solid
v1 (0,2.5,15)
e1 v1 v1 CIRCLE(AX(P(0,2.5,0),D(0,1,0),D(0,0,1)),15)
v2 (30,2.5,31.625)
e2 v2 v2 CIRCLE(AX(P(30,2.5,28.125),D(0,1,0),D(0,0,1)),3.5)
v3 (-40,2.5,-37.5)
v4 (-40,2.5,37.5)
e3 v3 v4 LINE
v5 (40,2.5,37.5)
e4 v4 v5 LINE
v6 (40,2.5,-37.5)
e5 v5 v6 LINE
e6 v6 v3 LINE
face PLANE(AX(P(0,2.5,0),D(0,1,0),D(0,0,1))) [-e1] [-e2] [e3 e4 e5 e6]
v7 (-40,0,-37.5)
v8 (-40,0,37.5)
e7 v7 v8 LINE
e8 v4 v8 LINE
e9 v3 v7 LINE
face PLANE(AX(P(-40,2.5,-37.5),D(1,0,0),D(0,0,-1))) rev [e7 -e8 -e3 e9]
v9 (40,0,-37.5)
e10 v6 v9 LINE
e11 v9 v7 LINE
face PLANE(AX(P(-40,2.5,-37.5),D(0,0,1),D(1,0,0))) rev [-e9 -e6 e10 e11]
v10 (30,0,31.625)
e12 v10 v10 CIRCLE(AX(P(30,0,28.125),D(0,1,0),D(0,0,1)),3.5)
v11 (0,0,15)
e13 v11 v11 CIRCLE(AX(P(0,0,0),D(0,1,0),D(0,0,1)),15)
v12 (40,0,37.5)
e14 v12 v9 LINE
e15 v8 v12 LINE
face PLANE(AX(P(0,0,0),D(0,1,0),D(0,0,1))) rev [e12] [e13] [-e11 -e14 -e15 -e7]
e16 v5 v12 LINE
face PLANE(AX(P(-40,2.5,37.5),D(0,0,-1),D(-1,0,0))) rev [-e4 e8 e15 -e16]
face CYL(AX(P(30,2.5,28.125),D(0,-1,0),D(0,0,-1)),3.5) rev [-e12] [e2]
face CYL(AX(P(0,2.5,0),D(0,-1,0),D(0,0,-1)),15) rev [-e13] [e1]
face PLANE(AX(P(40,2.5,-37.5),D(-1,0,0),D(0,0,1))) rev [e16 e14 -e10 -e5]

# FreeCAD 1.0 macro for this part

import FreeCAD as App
import Part
import Sketcher
Q = App.Units.Quantity


def add_polygon(sketch, points):
    """Adds a closed chain of lines whose ends are joined by coincident constraints."""
    first, n = sketch.GeometryCount, len(points)
    for a, b in zip(points, points[1:] + points[:1]):
        sketch.addGeometry(Part.LineSegment(App.Vector(*a, 0), App.Vector(*b, 0)), False)
    for i in range(n):
        sketch.addConstraint(Sketcher.Constraint("Coincident", first + i, 2, first + (i + 1) % n, 1))

doc = App.newDocument("Part")
body = doc.addObject("PartDesign::Body", "Body")

# Sketch on XZ plane
sketch1 = body.newObject("Sketcher::SketchObject", "Sketch")
sketch1.AttachmentSupport = (doc.getObject("XZ_Plane"), [""])
sketch1.MapMode = "FlatFace"
add_polygon(sketch1, [(-40, -37.5), (-40, 37.5), (40, 37.5), (40, -37.5)])  # lines 0-3
sketch1.addGeometry(Part.Circle(App.Vector(30, 28.1, 0), App.Vector(0, 0, 1), 3.5), False)  # 4
sketch1.addGeometry(Part.Circle(App.Vector(0, 0, 0), App.Vector(0, 0, 1), 15), False)  # 5
sketch1.addConstraint(Sketcher.Constraint("Vertical", 0))
sketch1.addConstraint(Sketcher.Constraint("Horizontal", 1))
sketch1.addConstraint(Sketcher.Constraint("Vertical", 2))
sketch1.addConstraint(Sketcher.Constraint("Horizontal", 3))
sketch1.addConstraint(Sketcher.Constraint("Coincident", 5, 3, -1, 1))
sketch1.addConstraint(Sketcher.Constraint("Symmetric", 0, 2, 2, 2, -1, 1))
sketch1.addConstraint(Sketcher.Constraint("Diameter", 4, Q("7 mm")))
sketch1.addConstraint(Sketcher.Constraint("Diameter", 5, Q("30 mm")))
sketch1.addConstraint(Sketcher.Constraint("DistanceX", 1, 1, 1, 2, Q("80 mm")))
sketch1.addConstraint(Sketcher.Constraint("DistanceY", 0, 1, 0, 2, Q("75 mm")))
sketch1.addConstraint(Sketcher.Constraint("DistanceX", -1, 1, 4, 3, Q("30 mm")))
sketch1.addConstraint(Sketcher.Constraint("DistanceY", -1, 1, 4, 3, Q("28.125 mm")))
pad1 = body.newObject("PartDesign::Pad", "Pad")
pad1.Profile = sketch1
pad1.Length = 2.5
pad1.Reversed = True

doc.recompute()
